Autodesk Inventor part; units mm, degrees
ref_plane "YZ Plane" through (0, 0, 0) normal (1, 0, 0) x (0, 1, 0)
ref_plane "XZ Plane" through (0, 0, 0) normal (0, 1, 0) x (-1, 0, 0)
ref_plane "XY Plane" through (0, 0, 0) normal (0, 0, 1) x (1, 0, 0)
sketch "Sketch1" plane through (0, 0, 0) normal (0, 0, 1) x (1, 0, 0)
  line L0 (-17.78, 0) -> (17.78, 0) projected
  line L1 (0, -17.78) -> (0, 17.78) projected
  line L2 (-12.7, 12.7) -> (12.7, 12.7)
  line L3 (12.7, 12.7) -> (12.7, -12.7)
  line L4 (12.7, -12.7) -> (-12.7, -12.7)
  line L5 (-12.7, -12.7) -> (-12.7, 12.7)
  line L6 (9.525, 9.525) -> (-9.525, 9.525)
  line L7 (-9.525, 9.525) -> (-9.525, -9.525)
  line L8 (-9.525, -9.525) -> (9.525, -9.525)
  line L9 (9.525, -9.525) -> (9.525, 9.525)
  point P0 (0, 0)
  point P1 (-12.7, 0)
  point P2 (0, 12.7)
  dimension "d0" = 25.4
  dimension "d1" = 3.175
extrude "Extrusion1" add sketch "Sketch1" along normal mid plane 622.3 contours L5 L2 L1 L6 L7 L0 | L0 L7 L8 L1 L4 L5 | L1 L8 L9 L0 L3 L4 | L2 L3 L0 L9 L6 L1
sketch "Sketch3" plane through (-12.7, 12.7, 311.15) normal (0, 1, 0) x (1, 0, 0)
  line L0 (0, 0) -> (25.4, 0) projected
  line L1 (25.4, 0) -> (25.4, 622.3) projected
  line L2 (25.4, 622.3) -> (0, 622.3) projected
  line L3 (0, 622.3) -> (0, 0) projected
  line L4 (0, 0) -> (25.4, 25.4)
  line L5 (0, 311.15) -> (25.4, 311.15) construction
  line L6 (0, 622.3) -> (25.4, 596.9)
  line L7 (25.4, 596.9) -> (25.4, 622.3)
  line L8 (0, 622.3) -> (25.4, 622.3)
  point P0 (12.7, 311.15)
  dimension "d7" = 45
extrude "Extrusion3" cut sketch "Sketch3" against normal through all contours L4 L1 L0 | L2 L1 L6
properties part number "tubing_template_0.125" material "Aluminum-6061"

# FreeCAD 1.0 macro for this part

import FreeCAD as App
import Part
import Sketcher
Q = App.Units.Quantity


def add_polygon(sketch, points):
    """Adds a closed chain of lines whose ends are joined by coincident constraints."""
    first, n = sketch.GeometryCount, len(points)
    for a, b in zip(points, points[1:] + points[:1]):
        sketch.addGeometry(Part.LineSegment(App.Vector(*a, 0), App.Vector(*b, 0)), False)
    for i in range(n):
        sketch.addConstraint(Sketcher.Constraint("Coincident", first + i, 2, first + (i + 1) % n, 1))

doc = App.newDocument("Part")
body = doc.addObject("PartDesign::Body", "Body")

sketch1 = body.newObject("Sketcher::SketchObject", "Sketch")
sketch1.AttachmentSupport = (doc.getObject("XY_Plane"), [""])
sketch1.MapMode = "FlatFace"
add_polygon(sketch1, [(-12.7, 12.7), (-12.7, -12.7), (12.7, -12.7), (12.7, 12.7)])
add_polygon(sketch1, [(-9.525, 9.525), (9.525, 9.525), (9.525, -9.525), (-9.525, -9.525)])
sketch1.addConstraint(Sketcher.Constraint("Vertical", 0))
sketch1.addConstraint(Sketcher.Constraint("Horizontal", 1))
sketch1.addConstraint(Sketcher.Constraint("Vertical", 2))
sketch1.addConstraint(Sketcher.Constraint("Horizontal", 3))
sketch1.addConstraint(Sketcher.Constraint("Horizontal", 4))
sketch1.addConstraint(Sketcher.Constraint("Vertical", 5))
sketch1.addConstraint(Sketcher.Constraint("Horizontal", 6))
sketch1.addConstraint(Sketcher.Constraint("Vertical", 7))
sketch1.addConstraint(Sketcher.Constraint("Symmetric", 0, 2, 2, 2, -1, 1))
sketch1.addConstraint(Sketcher.Constraint("Symmetric", 4, 2, 6, 2, -1, 1))
sketch1.addConstraint(Sketcher.Constraint("Equal", 3, 0))
sketch1.addConstraint(Sketcher.Constraint("Equal", 6, 5))
sketch1.addConstraint(Sketcher.Constraint("DistanceX", 1, 1, 1, 2, Q("1 in")))
sketch1.addConstraint(Sketcher.Constraint("DistanceX", 4, 2, 2, 2, Q("0.125 in")))
pad1 = body.newObject("PartDesign::Pad", "Pad")
pad1.Profile = sketch1
pad1.Length = Q("24.5 in")
pad1.Midplane = True

sketch2 = body.newObject("Sketcher::SketchObject", "Sketch001")
sketch2.AttachmentSupport = (doc.getObject("XZ_Plane"), [""])
sketch2.MapMode = "FlatFace"
sketch2.AttachmentOffset = App.Placement(App.Vector(0, 0, -0.5 * 25.4), App.Rotation())
add_polygon(sketch2, [(12.7, 285.75), (-12.7, 311.15), (12.7, 311.15)])
add_polygon(sketch2, [(12.7, -311.15), (-12.7, -311.15), (12.7, -285.75)])
sketch2.addConstraint(Sketcher.Constraint("Horizontal", 1))
sketch2.addConstraint(Sketcher.Constraint("Vertical", 2))
sketch2.addConstraint(Sketcher.Constraint("Horizontal", 3))
sketch2.addConstraint(Sketcher.Constraint("Vertical", 5))
sketch2.addConstraint(Sketcher.Constraint("Symmetric", 1, 2, 3, 2, -1, 1))
sketch2.addConstraint(Sketcher.Constraint("Symmetric", 2, 2, 4, 2, -1))
sketch2.addConstraint(Sketcher.Constraint("Perpendicular", 0, 4))
sketch2.addConstraint(Sketcher.Constraint("Vertical", 0, 2, 3, 2))
sketch2.addConstraint(Sketcher.Constraint("DistanceX", 1, 1, 1, 2, Q("1 in")))
sketch2.addConstraint(Sketcher.Constraint("DistanceY", 3, 2, 2, 2, Q("23.5 in")))
pocket1 = body.newObject("PartDesign::Pocket", "Pocket")
pocket1.Profile = sketch2
pocket1.Type = "ThroughAll"
pocket1.Reversed = True

doc.recompute()
